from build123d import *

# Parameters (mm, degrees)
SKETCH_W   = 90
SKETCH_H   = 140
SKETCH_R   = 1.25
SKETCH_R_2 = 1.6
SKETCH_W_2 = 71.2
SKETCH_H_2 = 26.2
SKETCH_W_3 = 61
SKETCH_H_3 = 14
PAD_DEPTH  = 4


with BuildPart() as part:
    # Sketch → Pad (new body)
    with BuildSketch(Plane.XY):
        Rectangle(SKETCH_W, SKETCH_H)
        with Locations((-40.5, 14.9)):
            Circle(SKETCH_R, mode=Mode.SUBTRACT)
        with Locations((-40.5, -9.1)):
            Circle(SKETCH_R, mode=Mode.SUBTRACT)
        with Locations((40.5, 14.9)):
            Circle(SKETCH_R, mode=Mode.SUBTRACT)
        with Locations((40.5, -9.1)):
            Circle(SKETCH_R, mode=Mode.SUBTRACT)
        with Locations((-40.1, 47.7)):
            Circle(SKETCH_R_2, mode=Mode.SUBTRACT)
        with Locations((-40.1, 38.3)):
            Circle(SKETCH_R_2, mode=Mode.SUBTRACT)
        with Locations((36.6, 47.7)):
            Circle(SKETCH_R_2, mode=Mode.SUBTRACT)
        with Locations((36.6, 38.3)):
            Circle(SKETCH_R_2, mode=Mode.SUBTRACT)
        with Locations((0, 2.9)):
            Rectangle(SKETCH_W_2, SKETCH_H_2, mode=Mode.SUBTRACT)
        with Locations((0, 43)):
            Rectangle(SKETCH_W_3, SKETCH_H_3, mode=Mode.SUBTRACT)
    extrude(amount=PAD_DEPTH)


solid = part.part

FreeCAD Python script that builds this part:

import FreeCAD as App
import Part
import Sketcher

doc = App.newDocument("Part")
params = doc.addObject("Spreadsheet::Sheet", "Params")
for row, (alias, value) in enumerate([
    ("sketch1_diameter", "2.5 mm"),
    ("sketch1_diameter2", "3.2 mm"),
    ("sketch1_width", "90 mm"),
    ("sketch1_width2", "61 mm"),
    ("sketch1_height", "140 mm"),
    ("pad1_length", "4 mm"),
], start=1):
    params.set(f"A{row}", alias)
    params.set(f"B{row}", "=" + value)
    params.setAlias(f"B{row}", alias)

body = doc.addObject("PartDesign::Body", "Body")

sketch1 = body.newObject("Sketcher::SketchObject", "Sketch")
sketch1.AttachmentSupport = (doc.getObject("XY_Plane"), [""])
sketch1.MapMode = "FlatFace"
sketch1.addGeometry([
    Part.LineSegment(App.Vector(-45, 70, 0), App.Vector(-45, -70, 0)),
    Part.LineSegment(App.Vector(-45, -70, 0), App.Vector(45, -70, 0)),
    Part.LineSegment(App.Vector(45, -70, 0), App.Vector(45, 70, 0)),
    Part.LineSegment(App.Vector(45, 70, 0), App.Vector(-45, 70, 0)),
    Part.Circle(App.Vector(-40.5, -9.1, 0), App.Vector(0, 0, 1), 1.25),
    Part.Circle(App.Vector(-40.5, 14.9, 0), App.Vector(0, 0, 1), 1.25),
    Part.LineSegment(App.Vector(35.6, -10.2, 0), App.Vector(-35.6, -10.2, 0)),
    Part.LineSegment(App.Vector(-35.6, -10.2, 0), App.Vector(-35.6, 16, 0)),
    Part.LineSegment(App.Vector(-35.6, 16, 0), App.Vector(35.6, 16, 0)),
    Part.LineSegment(App.Vector(35.6, 16, 0), App.Vector(35.6, -10.2, 0)),
    Part.Circle(App.Vector(40.5, -9.1, 0), App.Vector(0, 0, 1), 1.25),
    Part.Circle(App.Vector(40.5, 14.9, 0), App.Vector(0, 0, 1), 1.25),
    Part.Circle(App.Vector(-40.1, 38.3, 0), App.Vector(0, 0, 1), 1.6),
    Part.Circle(App.Vector(-40.1, 47.7, 0), App.Vector(0, 0, 1), 1.6),
    Part.LineSegment(App.Vector(30.5, 36, 0), App.Vector(-30.5, 36, 0)),
    Part.LineSegment(App.Vector(-30.5, 36, 0), App.Vector(-30.5, 50, 0)),
    Part.LineSegment(App.Vector(-30.5, 50, 0), App.Vector(30.5, 50, 0)),
    Part.LineSegment(App.Vector(30.5, 50, 0), App.Vector(30.5, 36, 0)),
    Part.Circle(App.Vector(36.6, 38.3, 0), App.Vector(0, 0, 1), 1.6),
    Part.Circle(App.Vector(36.6, 47.7, 0), App.Vector(0, 0, 1), 1.6),
], False)
sketch1.addConstraint([
    Sketcher.Constraint("Coincident", 0, 2, 1, 1),
    Sketcher.Constraint("Coincident", 1, 2, 2, 1),
    Sketcher.Constraint("Coincident", 2, 2, 3, 1),
    Sketcher.Constraint("Coincident", 3, 2, 0, 1),
    Sketcher.Constraint("Coincident", 6, 2, 7, 1),
    Sketcher.Constraint("Coincident", 7, 2, 8, 1),
    Sketcher.Constraint("Coincident", 8, 2, 9, 1),
    Sketcher.Constraint("Coincident", 9, 2, 6, 1),
    Sketcher.Constraint("Coincident", 14, 2, 15, 1),
    Sketcher.Constraint("Coincident", 15, 2, 16, 1),
    Sketcher.Constraint("Coincident", 16, 2, 17, 1),
    Sketcher.Constraint("Coincident", 17, 2, 14, 1),
    Sketcher.Constraint("Vertical", 0),
    Sketcher.Constraint("Horizontal", 1),
    Sketcher.Constraint("Vertical", 2),
    Sketcher.Constraint("Horizontal", 3),
    Sketcher.Constraint("Horizontal", 6),
    Sketcher.Constraint("Vertical", 7),
    Sketcher.Constraint("Horizontal", 8),
    Sketcher.Constraint("Vertical", 9),
    Sketcher.Constraint("Horizontal", 14),
    Sketcher.Constraint("Vertical", 15),
    Sketcher.Constraint("Horizontal", 16),
    Sketcher.Constraint("Vertical", 17),
    Sketcher.Constraint("Equal", 4, 5),
    Sketcher.Constraint("Equal", 5, 10),
    Sketcher.Constraint("Equal", 10, 11),
    Sketcher.Constraint("Equal", 12, 13),
    Sketcher.Constraint("Equal", 13, 18),
    Sketcher.Constraint("Equal", 18, 19),
    Sketcher.Constraint("Symmetric", 0, 2, 2, 2, -1, 1),
    Sketcher.Constraint("Symmetric", 4, 3, 10, 3, -2),
    Sketcher.Constraint("Symmetric", 5, 3, 11, 3, -2),
    Sketcher.Constraint("Horizontal", 12, 3, 18, 3),
    Sketcher.Constraint("Horizontal", 13, 3, 19, 3),
    Sketcher.Constraint("Vertical", 4, 3, 5, 3),
    Sketcher.Constraint("Vertical", 12, 3, 13, 3),
    Sketcher.Constraint("Vertical", 18, 3, 19, 3),
    Sketcher.Constraint("Diameter", 4, 2.5),
    Sketcher.Constraint("Diameter", 12, 3.2),
    Sketcher.Constraint("DistanceX", 1, 1, 1, 2, 90.0),
    Sketcher.Constraint("DistanceX", 14, 2, 14, 1, 61.0),
    Sketcher.Constraint("DistanceY", 0, 2, 0, 1, 140.0),
    Sketcher.Constraint("DistanceY", 15, 1, 15, 2, 14.0),
    Sketcher.Constraint("DistanceX", 6, 2, 6, 1, 71.2),
    Sketcher.Constraint("DistanceY", 7, 1, 7, 2, 26.2),
    Sketcher.Constraint("DistanceY", -1, 1, 7, 2, 16.0),
    Sketcher.Constraint("DistanceY", -1, 1, 14, 2, 36.0),
    Sketcher.Constraint("DistanceY", 4, 3, 5, 3, 24.0),
    Sketcher.Constraint("DistanceX", 4, 3, 10, 3, 81.0),
    Sketcher.Constraint("DistanceX", 8, 2, 18, 3, 1.0),
    Sketcher.Constraint("DistanceX", 5, 3, 14, 2, 10.0),
    Sketcher.Constraint("DistanceY", 4, 3, -1, 1, 9.1),
    Sketcher.Constraint("DistanceX", 12, 3, -1, 1, 40.1),
    Sketcher.Constraint("DistanceY", -1, 1, 12, 3, 38.3),
    Sketcher.Constraint("DistanceY", -1, 1, 13, 3, 47.7),
    Sketcher.Constraint("DistanceX", -1, 1, 18, 3, 36.6),
])
sketch1.setExpression("Constraints[38]", "Params.sketch1_diameter")
sketch1.setExpression("Constraints[39]", "Params.sketch1_diameter2")
sketch1.setExpression("Constraints[40]", "Params.sketch1_width")
sketch1.setExpression("Constraints[41]", "Params.sketch1_width2")
sketch1.setExpression("Constraints[42]", "Params.sketch1_height")
pad1 = body.newObject("PartDesign::Pad", "Pad")
pad1.Profile = sketch1
pad1.setExpression("Length", "Params.pad1_length")

doc.recompute()
